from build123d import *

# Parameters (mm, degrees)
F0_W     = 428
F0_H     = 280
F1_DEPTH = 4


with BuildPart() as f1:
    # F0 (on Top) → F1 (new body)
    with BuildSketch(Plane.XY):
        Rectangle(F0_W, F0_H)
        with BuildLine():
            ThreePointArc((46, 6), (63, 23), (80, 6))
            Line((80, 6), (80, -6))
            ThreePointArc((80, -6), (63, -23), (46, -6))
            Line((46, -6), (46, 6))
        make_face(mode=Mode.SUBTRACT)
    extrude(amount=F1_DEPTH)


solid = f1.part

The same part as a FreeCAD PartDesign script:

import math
import FreeCAD as App
import Part
import Sketcher

V = App.Vector


def add_polygon(sketch, points):
    """Adds a closed chain of lines whose ends are joined by coincident constraints."""
    first, n = sketch.GeometryCount, len(points)
    for a, b in zip(points, points[1:] + points[:1]):
        sketch.addGeometry(Part.LineSegment(App.Vector(*a, 0), App.Vector(*b, 0)), False)
    for i in range(n):
        sketch.addConstraint(Sketcher.Constraint("Coincident", first + i, 2, first + (i + 1) % n, 1))

doc = App.newDocument("Part")
body = doc.addObject("PartDesign::Body", "Body")

sketch1 = body.newObject("Sketcher::SketchObject", "Sketch")
sketch1.AttachmentSupport = (doc.getObject("XY_Plane"), [""])
sketch1.MapMode = "FlatFace"
add_polygon(sketch1, [(-214, 140), (-214, -140), (214, -140), (214, 140)])
sketch1.addGeometry(Part.LineSegment(V(46, -6, 0), V(46, 6, 0)), False)
sketch1.addGeometry(Part.ArcOfCircle(Part.Circle(V(63, 6, 0), V(0, 0, 1), 17), math.radians(0), math.radians(180)), False)
sketch1.addGeometry(Part.LineSegment(V(80, 6, 0), V(80, -6, 0)), False)
sketch1.addGeometry(Part.ArcOfCircle(Part.Circle(V(63, -6, 0), V(0, 0, 1), 17), math.radians(180), math.radians(360)), False)
sketch1.addConstraint(Sketcher.Constraint("Tangent", 4, 2, 5, 2))
sketch1.addConstraint(Sketcher.Constraint("Tangent", 5, 1, 6, 1))
sketch1.addConstraint(Sketcher.Constraint("Tangent", 6, 2, 7, 2))
sketch1.addConstraint(Sketcher.Constraint("Tangent", 7, 1, 4, 1))
sketch1.addConstraint(Sketcher.Constraint("Vertical", 0))
sketch1.addConstraint(Sketcher.Constraint("Horizontal", 1))
sketch1.addConstraint(Sketcher.Constraint("Vertical", 2))
sketch1.addConstraint(Sketcher.Constraint("Horizontal", 3))
sketch1.addConstraint(Sketcher.Constraint("Vertical", 4))
sketch1.addConstraint(Sketcher.Constraint("Vertical", 6))
sketch1.addConstraint(Sketcher.Constraint("Symmetric", 0, 2, 2, 2, -1, 1))
sketch1.addConstraint(Sketcher.Constraint("Radius", 5, 17.0))
sketch1.addConstraint(Sketcher.Constraint("DistanceX", 1, 1, 1, 2, 428.0))
sketch1.addConstraint(Sketcher.Constraint("DistanceY", 0, 2, 0, 1, 280.0))
sketch1.addConstraint(Sketcher.Constraint("DistanceY", 4, 1, 4, 2, 12.0))
sketch1.addConstraint(Sketcher.Constraint("DistanceX", -1, 1, 5, 3, 63.0))
sketch1.addConstraint(Sketcher.Constraint("DistanceY", -1, 1, 5, 3, 6.0))
pad1 = body.newObject("PartDesign::Pad", "Pad")
pad1.Profile = sketch1
pad1.Length = 4

doc.recompute()
